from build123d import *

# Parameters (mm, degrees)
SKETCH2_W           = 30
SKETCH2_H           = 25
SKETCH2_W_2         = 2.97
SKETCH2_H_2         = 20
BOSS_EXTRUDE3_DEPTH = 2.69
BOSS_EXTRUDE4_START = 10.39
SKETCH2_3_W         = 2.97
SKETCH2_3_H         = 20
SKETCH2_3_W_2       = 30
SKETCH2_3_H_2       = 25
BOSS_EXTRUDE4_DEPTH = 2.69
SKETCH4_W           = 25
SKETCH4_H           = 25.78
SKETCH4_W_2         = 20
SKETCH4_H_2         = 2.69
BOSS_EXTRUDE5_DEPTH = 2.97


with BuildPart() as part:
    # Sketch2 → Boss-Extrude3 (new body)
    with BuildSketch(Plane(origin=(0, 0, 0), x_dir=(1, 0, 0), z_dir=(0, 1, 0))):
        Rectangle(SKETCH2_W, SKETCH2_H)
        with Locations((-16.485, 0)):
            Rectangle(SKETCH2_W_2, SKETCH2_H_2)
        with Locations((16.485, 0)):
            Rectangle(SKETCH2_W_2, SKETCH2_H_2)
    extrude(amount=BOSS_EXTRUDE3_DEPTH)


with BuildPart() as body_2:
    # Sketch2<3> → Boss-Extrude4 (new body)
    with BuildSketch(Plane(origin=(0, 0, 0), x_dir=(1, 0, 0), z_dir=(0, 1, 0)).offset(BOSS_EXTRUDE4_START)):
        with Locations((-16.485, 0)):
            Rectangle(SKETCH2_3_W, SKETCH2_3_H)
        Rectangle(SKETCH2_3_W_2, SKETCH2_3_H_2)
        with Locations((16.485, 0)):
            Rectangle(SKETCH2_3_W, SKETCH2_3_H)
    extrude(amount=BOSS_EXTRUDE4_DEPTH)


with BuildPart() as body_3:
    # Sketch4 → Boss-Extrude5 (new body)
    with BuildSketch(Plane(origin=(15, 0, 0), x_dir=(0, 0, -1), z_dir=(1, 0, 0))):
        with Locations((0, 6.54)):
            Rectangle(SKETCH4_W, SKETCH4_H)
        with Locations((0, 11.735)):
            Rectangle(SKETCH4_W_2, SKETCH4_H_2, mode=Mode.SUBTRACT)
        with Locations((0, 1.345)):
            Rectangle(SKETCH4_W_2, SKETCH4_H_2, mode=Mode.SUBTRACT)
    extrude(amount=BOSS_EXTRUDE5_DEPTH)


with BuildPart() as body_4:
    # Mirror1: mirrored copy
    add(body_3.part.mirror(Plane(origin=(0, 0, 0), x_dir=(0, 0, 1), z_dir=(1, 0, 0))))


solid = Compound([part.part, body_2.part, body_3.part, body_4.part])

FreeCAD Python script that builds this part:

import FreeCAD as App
import Part
import Sketcher

V = App.Vector


def add_polygon(sketch, points):
    """Adds a closed chain of lines whose ends are joined by coincident constraints."""
    first, n = sketch.GeometryCount, len(points)
    for a, b in zip(points, points[1:] + points[:1]):
        sketch.addGeometry(Part.LineSegment(App.Vector(*a, 0), App.Vector(*b, 0)), False)
    for i in range(n):
        sketch.addConstraint(Sketcher.Constraint("Coincident", first + i, 2, first + (i + 1) % n, 1))

doc = App.newDocument("Part")
params = doc.addObject("Spreadsheet::Sheet", "Params")
for row, (alias, value) in enumerate([
    ("sketch1_width", "30 mm"),
    ("sketch1_height", "20 mm"),
    ("sketch1_height2", "2.5 mm"),
    ("sketch1_width2", "2.97 mm"),
    ("pad1_length", "2.69 mm"),
    ("sketch2_width", "30 mm"),
    ("sketch2_height", "20 mm"),
    ("sketch2_height2", "2.5 mm"),
    ("sketch2_width2", "2.97 mm"),
    ("pad2_length", "2.69 mm"),
    ("sketch3_height", "25 mm"),
    ("sketch3_height2", "20 mm"),
    ("sketch3_width", "25.78 mm"),
    ("sketch3_width2", "2.69 mm"),
    ("pad3_length", "2.97 mm"),
], start=1):
    params.set(f"A{row}", alias)
    params.set(f"B{row}", "=" + value)
    params.setAlias(f"B{row}", alias)

body = doc.addObject("PartDesign::Body", "Body")

# Sketch on XZ plane
sketch1 = body.newObject("Sketcher::SketchObject", "Sketch")
sketch1.AttachmentSupport = (doc.getObject("XZ_Plane"), [""])
sketch1.MapMode = "FlatFace"
add_polygon(sketch1, [(-15, 10), (-15, 12.5), (15, 12.5), (15, 10), (18, 10), (18, -10), (15, -10), (15, -12.5), (-15, -12.5), (-15, -10), (-18, -10), (-18, 10)])  # lines 0-11
sketch1.addConstraint([
    Sketcher.Constraint("Vertical", 0),
    Sketcher.Constraint("Horizontal", 1),
    Sketcher.Constraint("Vertical", 2),
    Sketcher.Constraint("Horizontal", 3),
    Sketcher.Constraint("Vertical", 4),
    Sketcher.Constraint("Horizontal", 5),
    Sketcher.Constraint("Vertical", 6),
    Sketcher.Constraint("Horizontal", 7),
    Sketcher.Constraint("Vertical", 8),
    Sketcher.Constraint("Horizontal", 9),
    Sketcher.Constraint("Vertical", 10),
    Sketcher.Constraint("Horizontal", 11),
    Sketcher.Constraint("Symmetric", 0, 2, 6, 2, -1, 1),
    Sketcher.Constraint("Symmetric", 2, 2, 8, 2, -1, 1),
    Sketcher.Constraint("Symmetric", 4, 2, 10, 2, -1, 1),
    Sketcher.Constraint("Symmetric", 5, 2, 8, 2, -2),
    Sketcher.Constraint("DistanceX", 1, 1, 1, 2, 30.0),
    Sketcher.Constraint("DistanceY", 4, 2, 4, 1, 20.0),
    Sketcher.Constraint("DistanceY", 0, 1, 0, 2, 2.5),
    Sketcher.Constraint("DistanceX", 3, 1, 3, 2, 2.97),
])
sketch1.setExpression("Constraints[28]", "Params.sketch1_width")
sketch1.setExpression("Constraints[29]", "Params.sketch1_height")
sketch1.setExpression("Constraints[30]", "Params.sketch1_height2")
sketch1.setExpression("Constraints[31]", "Params.sketch1_width2")
pad1 = body.newObject("PartDesign::Pad", "Pad")
pad1.Profile = sketch1
pad1.setExpression("Length", "Params.pad1_length")
pad1.Reversed = True
body2 = doc.addObject("PartDesign::Body", "Body001")

# Sketch on XZ plane
sketch2 = body2.newObject("Sketcher::SketchObject", "Sketch001")
sketch2.AttachmentSupport = (doc.getObject("XZ_Plane001"), [""])
sketch2.MapMode = "FlatFace"
sketch2.AttachmentOffset = App.Placement(V(0, 0, -10.39), App.Rotation())
add_polygon(sketch2, [(-18, -10), (-18, 10), (-15, 10), (-15, 12.5), (15, 12.5), (15, 10), (18, 10), (18, -10), (15, -10), (15, -12.5), (-15, -12.5), (-15, -10)])  # lines 0-11
sketch2.addConstraint([
    Sketcher.Constraint("Vertical", 0),
    Sketcher.Constraint("Horizontal", 1),
    Sketcher.Constraint("Vertical", 2),
    Sketcher.Constraint("Horizontal", 3),
    Sketcher.Constraint("Vertical", 4),
    Sketcher.Constraint("Horizontal", 5),
    Sketcher.Constraint("Vertical", 6),
    Sketcher.Constraint("Horizontal", 7),
    Sketcher.Constraint("Vertical", 8),
    Sketcher.Constraint("Horizontal", 9),
    Sketcher.Constraint("Vertical", 10),
    Sketcher.Constraint("Horizontal", 11),
    Sketcher.Constraint("Symmetric", 0, 2, 6, 2, -1, 1),
    Sketcher.Constraint("Symmetric", 2, 2, 8, 2, -1, 1),
    Sketcher.Constraint("Symmetric", 4, 2, 10, 2, -1, 1),
    Sketcher.Constraint("Symmetric", 1, 2, 4, 2, -2),
    Sketcher.Constraint("DistanceX", 3, 1, 3, 2, 30.0),
    Sketcher.Constraint("DistanceY", 0, 1, 0, 2, 20.0),
    Sketcher.Constraint("DistanceY", 2, 1, 2, 2, 2.5),
    Sketcher.Constraint("DistanceX", 1, 1, 1, 2, 2.97),
])
sketch2.setExpression("Constraints[28]", "Params.sketch2_width")
sketch2.setExpression("Constraints[29]", "Params.sketch2_height")
sketch2.setExpression("Constraints[30]", "Params.sketch2_height2")
sketch2.setExpression("Constraints[31]", "Params.sketch2_width2")
pad2 = body2.newObject("PartDesign::Pad", "Pad001")
pad2.Profile = sketch2
pad2.setExpression("Length", "Params.pad2_length")
pad2.Reversed = True
body3 = doc.addObject("PartDesign::Body", "Body002")

# Sketch on YZ plane
sketch3 = body3.newObject("Sketcher::SketchObject", "Sketch002")
sketch3.AttachmentSupport = (doc.getObject("YZ_Plane002"), [""])
sketch3.MapMode = "FlatFace"
sketch3.AttachmentOffset = App.Placement(V(0, 0, 15), App.Rotation())
add_polygon(sketch3, [(19.4, 12.5), (-6.3, 12.5), (-6.3, -12.5), (19.4, -12.5)])  # lines 0-3
add_polygon(sketch3, [(0, -10), (0, 10), (2.7, 10), (2.7, -10)])  # lines 4-7
add_polygon(sketch3, [(10.4, -10), (10.4, 10), (13.1, 10), (13.1, -10)])  # lines 8-11
sketch3.addConstraint([
    Sketcher.Constraint("Horizontal", 0),
    Sketcher.Constraint("Vertical", 1),
    Sketcher.Constraint("Horizontal", 2),
    Sketcher.Constraint("Vertical", 3),
    Sketcher.Constraint("Vertical", 4),
    Sketcher.Constraint("Horizontal", 5),
    Sketcher.Constraint("Vertical", 6),
    Sketcher.Constraint("Horizontal", 7),
    Sketcher.Constraint("Vertical", 8),
    Sketcher.Constraint("Horizontal", 9),
    Sketcher.Constraint("Vertical", 10),
    Sketcher.Constraint("Horizontal", 11),
    Sketcher.Constraint("Symmetric", 4, 2, 7, 2, -1, 1),
    Sketcher.Constraint("Horizontal", 5, 2, 8, 2),
    Sketcher.Constraint("Horizontal", 7, 2, 10, 2),
    Sketcher.Constraint("Equal", 7, 9),
    Sketcher.Constraint("DistanceY", 1, 2, 1, 1, 25.0),
    Sketcher.Constraint("DistanceY", 4, 1, 4, 2, 20.0),
    Sketcher.Constraint("DistanceX", 0, 2, 0, 1, 25.78),
    Sketcher.Constraint("DistanceX", 5, 1, 5, 2, 2.69),
    Sketcher.Constraint("DistanceY", -1, 1, 0, 2, 12.5),
    Sketcher.Constraint("DistanceX", 5, 2, 8, 2, 7.7),
    Sketcher.Constraint("DistanceX", 0, 2, -1, 1, 6.35),
])
sketch3.setExpression("Constraints[28]", "Params.sketch3_height")
sketch3.setExpression("Constraints[29]", "Params.sketch3_height2")
sketch3.setExpression("Constraints[30]", "Params.sketch3_width")
sketch3.setExpression("Constraints[31]", "Params.sketch3_width2")
pad3 = body3.newObject("PartDesign::Pad", "Pad002")
pad3.Profile = sketch3
pad3.setExpression("Length", "Params.pad3_length")
body4 = doc.addObject("PartDesign::Body", "Body003")
doc.recompute()

mirroring = doc.addObject("Part::Mirroring", "Mirroring")
mirroring.Source = body3
mirroring.Base = V(0, 0, 0)
mirroring.Normal = V(1, 0, 0)
body4.BaseFeature = mirroring
doc.recompute()
mirroring.Visibility = False

doc.recompute()
